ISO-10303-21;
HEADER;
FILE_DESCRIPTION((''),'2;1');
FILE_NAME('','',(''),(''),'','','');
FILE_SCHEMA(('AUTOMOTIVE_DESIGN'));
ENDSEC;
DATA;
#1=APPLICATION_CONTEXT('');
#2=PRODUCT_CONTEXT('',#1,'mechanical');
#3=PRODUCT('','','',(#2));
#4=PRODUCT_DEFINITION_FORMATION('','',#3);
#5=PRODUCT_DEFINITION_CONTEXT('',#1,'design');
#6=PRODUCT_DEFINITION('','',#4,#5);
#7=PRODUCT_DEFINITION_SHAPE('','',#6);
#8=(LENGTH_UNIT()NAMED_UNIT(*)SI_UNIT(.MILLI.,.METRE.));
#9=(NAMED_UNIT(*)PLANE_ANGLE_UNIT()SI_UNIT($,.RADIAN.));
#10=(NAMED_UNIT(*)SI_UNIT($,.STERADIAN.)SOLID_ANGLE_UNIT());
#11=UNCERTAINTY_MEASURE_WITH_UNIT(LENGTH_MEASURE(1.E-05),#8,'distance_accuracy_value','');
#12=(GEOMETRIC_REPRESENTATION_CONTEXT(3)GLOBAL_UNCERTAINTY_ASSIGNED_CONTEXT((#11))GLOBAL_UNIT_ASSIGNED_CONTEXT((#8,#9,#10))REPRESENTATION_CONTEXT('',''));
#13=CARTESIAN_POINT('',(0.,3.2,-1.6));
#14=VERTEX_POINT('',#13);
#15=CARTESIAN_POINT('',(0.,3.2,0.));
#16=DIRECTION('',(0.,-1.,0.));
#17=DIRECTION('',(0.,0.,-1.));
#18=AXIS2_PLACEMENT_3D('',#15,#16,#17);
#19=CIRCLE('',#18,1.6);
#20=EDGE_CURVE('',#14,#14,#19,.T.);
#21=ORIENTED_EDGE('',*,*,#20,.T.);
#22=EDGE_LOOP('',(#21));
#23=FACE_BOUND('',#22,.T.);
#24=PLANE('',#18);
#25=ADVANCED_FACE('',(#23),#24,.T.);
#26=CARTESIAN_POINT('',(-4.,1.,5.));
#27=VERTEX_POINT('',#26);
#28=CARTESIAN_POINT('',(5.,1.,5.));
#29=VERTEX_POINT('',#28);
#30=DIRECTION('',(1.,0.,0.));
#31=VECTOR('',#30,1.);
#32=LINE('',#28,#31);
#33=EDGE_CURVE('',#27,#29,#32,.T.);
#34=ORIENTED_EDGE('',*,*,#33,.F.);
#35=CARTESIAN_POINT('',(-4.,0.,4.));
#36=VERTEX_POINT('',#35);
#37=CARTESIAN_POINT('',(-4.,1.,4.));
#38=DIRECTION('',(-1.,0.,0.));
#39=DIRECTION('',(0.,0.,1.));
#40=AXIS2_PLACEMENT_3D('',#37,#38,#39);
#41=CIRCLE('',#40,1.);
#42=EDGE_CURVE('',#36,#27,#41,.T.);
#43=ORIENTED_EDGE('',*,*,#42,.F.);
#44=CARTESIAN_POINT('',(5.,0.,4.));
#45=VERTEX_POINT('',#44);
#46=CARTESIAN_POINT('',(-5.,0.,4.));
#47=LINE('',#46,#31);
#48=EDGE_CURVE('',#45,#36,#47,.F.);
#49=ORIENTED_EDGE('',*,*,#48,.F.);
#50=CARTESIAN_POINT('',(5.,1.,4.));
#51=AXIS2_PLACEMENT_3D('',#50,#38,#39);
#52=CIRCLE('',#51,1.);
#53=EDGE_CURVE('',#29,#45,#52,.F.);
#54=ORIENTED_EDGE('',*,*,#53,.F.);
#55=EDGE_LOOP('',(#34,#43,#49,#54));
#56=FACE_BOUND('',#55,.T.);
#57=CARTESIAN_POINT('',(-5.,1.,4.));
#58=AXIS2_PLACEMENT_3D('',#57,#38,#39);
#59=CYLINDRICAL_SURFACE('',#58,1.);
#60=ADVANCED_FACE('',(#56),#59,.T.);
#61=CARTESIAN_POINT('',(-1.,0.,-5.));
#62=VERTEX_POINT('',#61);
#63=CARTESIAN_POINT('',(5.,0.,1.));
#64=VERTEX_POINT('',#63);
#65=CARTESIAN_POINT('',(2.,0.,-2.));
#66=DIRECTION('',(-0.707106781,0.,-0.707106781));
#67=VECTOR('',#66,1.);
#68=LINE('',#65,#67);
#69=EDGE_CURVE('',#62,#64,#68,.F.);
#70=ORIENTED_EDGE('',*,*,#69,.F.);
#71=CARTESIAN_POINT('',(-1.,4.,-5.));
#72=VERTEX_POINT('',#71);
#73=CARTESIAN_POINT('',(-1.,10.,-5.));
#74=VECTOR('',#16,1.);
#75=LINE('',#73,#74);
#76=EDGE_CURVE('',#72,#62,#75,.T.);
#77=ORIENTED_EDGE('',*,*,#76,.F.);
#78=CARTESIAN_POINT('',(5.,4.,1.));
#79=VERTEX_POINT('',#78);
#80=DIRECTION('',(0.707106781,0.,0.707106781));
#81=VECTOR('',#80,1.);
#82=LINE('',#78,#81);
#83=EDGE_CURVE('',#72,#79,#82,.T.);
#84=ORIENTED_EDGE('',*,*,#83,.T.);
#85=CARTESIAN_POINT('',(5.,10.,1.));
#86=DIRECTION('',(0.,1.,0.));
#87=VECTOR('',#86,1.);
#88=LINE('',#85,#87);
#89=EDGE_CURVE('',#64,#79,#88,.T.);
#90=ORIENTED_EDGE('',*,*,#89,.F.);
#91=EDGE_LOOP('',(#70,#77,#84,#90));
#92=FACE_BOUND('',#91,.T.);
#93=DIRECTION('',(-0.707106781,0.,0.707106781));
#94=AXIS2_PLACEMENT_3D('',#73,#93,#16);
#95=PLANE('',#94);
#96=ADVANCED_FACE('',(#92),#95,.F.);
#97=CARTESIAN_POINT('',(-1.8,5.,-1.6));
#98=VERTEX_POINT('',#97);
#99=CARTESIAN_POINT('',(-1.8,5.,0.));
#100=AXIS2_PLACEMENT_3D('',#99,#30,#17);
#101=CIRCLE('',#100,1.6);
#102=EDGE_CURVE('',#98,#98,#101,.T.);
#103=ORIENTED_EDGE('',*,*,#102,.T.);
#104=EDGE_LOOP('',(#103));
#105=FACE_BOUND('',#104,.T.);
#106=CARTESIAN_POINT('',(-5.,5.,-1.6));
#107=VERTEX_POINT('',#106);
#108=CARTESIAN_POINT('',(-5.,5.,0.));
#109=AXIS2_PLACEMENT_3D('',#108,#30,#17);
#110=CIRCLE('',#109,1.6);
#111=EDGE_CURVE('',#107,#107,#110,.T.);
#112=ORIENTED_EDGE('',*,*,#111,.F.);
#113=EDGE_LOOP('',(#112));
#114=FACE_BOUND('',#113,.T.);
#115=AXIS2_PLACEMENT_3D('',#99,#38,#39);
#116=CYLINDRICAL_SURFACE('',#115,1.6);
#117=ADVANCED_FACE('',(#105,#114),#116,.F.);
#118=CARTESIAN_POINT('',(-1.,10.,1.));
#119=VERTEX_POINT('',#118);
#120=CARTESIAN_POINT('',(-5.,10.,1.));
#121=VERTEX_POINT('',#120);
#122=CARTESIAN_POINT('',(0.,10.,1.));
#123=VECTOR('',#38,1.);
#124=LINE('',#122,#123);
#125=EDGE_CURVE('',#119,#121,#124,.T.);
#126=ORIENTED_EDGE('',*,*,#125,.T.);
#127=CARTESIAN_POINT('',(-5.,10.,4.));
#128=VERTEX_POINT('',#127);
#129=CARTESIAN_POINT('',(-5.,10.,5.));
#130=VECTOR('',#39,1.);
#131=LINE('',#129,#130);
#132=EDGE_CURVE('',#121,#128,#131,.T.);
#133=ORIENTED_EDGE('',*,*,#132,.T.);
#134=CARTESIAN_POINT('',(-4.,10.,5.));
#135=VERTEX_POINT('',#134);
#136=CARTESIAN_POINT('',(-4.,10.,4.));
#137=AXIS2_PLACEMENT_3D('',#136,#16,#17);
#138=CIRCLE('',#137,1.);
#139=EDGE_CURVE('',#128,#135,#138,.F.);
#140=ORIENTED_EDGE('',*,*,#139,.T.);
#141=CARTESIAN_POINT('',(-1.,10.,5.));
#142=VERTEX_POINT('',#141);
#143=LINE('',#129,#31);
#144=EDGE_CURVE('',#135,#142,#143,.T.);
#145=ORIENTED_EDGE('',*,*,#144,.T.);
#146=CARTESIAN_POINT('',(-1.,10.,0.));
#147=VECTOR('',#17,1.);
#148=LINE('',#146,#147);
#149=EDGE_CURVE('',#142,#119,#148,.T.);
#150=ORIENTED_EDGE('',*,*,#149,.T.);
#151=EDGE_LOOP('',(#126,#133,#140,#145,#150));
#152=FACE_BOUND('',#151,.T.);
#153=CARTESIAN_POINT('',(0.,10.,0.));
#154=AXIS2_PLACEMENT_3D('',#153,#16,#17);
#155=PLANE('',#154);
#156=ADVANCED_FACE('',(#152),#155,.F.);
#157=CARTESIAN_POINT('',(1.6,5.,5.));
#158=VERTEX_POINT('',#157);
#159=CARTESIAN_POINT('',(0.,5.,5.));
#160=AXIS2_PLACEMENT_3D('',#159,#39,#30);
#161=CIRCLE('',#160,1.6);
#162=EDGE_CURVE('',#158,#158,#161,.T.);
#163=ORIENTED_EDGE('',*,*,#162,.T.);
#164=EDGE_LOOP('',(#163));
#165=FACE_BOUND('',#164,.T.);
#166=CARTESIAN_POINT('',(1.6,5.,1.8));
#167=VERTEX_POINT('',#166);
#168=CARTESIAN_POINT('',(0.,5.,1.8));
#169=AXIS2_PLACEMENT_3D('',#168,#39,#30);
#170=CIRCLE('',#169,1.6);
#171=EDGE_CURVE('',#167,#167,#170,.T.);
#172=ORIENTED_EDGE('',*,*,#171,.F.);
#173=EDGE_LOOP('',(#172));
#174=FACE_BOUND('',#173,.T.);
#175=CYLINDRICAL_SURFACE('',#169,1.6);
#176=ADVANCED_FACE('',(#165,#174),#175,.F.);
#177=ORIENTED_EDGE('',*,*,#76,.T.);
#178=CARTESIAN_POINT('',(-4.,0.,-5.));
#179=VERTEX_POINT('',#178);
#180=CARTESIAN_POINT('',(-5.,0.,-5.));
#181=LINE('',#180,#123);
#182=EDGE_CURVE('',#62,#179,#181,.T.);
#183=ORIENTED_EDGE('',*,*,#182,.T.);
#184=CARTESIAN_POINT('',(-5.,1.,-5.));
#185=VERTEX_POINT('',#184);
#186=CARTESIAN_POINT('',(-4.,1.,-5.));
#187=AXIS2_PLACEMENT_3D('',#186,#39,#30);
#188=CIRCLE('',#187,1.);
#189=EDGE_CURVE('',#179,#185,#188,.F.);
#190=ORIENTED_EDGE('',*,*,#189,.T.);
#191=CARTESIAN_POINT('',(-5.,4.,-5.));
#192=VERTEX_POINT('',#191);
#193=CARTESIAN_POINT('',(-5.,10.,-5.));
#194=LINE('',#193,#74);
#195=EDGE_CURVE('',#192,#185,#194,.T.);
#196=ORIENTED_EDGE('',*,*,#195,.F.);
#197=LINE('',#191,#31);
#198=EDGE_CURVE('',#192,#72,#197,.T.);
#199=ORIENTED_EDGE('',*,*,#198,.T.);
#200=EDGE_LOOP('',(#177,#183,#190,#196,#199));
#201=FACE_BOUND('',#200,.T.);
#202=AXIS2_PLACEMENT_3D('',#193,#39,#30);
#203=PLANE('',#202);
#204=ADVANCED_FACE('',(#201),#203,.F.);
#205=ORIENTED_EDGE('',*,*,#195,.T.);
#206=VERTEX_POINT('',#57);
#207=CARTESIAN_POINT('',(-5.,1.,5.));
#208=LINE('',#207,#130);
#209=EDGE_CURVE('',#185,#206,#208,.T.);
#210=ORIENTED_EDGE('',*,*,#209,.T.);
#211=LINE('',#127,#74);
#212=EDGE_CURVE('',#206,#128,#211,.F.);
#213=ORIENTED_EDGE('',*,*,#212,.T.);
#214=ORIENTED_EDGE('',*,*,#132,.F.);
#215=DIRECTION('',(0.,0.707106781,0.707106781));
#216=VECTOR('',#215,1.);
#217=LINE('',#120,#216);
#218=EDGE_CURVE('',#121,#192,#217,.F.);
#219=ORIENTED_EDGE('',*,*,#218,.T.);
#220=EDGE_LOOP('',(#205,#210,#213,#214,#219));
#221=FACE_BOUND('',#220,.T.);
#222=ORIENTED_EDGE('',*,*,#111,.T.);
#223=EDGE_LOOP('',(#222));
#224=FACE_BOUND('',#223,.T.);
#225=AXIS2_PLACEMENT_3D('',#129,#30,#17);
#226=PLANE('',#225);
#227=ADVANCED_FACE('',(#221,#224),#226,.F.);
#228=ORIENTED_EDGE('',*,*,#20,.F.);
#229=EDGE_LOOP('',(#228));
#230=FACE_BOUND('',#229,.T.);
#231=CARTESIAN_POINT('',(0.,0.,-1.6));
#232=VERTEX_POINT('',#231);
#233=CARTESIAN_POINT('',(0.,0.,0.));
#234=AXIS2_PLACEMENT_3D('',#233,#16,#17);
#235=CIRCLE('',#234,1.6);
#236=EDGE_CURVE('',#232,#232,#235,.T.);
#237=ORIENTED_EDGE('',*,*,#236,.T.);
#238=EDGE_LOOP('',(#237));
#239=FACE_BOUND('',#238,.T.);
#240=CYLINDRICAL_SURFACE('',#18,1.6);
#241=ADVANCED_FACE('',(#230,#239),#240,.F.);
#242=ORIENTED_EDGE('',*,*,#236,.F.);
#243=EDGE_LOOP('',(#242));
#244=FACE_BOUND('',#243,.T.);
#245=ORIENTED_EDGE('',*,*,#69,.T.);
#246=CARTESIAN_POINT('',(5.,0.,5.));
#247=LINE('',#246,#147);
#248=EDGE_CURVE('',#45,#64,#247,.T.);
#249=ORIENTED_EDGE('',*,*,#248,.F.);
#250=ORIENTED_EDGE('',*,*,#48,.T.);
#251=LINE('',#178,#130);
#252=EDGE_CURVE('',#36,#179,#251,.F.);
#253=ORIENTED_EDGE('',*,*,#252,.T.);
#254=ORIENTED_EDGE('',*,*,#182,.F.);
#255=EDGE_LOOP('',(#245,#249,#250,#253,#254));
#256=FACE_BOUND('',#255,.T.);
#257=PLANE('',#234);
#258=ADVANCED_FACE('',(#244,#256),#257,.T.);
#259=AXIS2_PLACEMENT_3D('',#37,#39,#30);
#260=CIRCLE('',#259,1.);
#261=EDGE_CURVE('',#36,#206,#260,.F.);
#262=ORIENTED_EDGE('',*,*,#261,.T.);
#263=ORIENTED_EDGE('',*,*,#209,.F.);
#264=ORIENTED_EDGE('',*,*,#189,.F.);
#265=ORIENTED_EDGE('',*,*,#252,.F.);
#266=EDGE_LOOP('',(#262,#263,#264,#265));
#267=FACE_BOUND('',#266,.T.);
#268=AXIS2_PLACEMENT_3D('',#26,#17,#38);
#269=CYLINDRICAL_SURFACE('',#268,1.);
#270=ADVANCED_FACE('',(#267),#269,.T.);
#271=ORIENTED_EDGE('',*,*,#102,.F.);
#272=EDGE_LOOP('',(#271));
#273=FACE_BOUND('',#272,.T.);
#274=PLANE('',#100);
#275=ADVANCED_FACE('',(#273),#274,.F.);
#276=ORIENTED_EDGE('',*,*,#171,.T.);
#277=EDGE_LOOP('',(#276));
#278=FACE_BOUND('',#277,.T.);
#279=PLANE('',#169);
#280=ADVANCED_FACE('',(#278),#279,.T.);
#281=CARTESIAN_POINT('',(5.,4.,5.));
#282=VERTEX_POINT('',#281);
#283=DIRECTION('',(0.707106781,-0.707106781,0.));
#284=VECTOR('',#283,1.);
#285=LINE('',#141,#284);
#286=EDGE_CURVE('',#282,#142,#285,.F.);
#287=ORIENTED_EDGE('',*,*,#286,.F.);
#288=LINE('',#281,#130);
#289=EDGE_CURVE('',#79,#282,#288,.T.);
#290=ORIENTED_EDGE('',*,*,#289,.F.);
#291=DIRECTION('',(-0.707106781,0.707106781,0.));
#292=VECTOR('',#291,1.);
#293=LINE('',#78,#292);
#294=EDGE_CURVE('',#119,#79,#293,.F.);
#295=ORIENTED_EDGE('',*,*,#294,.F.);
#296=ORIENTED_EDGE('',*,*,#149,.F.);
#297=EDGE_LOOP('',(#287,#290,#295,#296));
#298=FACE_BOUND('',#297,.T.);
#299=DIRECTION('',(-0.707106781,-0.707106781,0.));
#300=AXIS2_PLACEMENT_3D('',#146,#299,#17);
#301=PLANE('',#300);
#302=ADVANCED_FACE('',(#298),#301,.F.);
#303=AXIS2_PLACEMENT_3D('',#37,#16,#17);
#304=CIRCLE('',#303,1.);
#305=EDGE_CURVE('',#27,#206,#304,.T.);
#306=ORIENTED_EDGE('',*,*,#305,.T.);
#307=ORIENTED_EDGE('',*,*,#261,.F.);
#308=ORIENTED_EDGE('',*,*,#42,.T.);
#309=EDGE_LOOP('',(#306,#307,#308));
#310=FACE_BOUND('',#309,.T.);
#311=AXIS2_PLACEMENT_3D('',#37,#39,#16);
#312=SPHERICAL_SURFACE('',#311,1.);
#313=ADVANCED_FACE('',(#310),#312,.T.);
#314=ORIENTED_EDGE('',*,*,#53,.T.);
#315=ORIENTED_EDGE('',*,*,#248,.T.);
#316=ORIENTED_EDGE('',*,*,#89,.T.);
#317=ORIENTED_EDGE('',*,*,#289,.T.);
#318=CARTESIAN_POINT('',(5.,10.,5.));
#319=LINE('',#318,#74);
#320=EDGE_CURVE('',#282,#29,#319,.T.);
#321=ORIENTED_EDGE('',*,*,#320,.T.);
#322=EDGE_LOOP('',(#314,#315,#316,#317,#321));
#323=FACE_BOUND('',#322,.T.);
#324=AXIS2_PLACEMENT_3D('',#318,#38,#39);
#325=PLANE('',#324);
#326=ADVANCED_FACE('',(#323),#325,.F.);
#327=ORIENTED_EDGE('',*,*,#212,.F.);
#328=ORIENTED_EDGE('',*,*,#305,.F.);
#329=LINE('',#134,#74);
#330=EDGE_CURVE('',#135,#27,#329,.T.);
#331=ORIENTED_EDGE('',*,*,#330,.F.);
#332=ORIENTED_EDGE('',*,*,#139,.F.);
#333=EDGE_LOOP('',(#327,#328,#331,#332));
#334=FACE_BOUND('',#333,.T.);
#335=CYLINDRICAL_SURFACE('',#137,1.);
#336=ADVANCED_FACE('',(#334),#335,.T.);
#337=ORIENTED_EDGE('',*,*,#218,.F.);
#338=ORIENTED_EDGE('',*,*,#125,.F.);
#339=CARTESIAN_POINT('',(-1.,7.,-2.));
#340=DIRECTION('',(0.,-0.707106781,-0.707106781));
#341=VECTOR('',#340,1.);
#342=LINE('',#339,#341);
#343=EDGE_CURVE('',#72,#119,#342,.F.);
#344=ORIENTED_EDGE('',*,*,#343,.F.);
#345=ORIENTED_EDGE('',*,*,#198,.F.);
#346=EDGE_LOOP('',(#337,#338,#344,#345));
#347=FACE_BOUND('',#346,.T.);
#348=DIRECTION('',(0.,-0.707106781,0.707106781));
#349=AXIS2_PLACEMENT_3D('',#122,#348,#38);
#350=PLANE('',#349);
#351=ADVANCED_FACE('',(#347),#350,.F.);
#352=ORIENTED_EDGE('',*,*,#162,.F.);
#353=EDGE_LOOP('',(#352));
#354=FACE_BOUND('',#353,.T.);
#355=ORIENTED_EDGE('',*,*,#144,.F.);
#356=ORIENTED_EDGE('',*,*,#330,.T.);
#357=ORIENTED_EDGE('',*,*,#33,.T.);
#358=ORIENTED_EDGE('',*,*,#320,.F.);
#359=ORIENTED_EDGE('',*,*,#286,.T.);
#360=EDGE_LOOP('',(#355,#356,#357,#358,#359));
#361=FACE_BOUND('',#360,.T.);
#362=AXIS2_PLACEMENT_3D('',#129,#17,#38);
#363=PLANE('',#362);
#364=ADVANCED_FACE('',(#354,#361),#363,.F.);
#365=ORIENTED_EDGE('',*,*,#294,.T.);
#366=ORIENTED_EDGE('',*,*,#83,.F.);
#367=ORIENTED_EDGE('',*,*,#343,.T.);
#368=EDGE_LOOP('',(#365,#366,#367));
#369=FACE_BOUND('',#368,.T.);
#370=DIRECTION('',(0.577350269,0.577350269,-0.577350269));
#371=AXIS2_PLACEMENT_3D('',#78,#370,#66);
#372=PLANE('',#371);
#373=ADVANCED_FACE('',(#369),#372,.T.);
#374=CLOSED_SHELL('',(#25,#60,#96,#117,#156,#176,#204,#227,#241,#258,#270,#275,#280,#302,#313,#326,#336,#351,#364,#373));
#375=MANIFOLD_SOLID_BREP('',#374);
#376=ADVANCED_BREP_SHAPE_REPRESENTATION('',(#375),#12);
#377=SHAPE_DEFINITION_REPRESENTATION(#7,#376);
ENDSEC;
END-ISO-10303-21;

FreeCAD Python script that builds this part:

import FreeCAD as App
import Part
import Sketcher
Q = App.Units.Quantity


def edges_at(feature, points):
    """Names of the edges that pass closest to the given points."""
    edges = feature.Shape.Edges
    near = lambda p: min(range(len(edges)), key=lambda i: edges[i].distToShape(Part.Vertex(*p))[0])
    return sorted({f"Edge{near(p) + 1}" for p in points})

doc = App.newDocument("Part")
body = doc.addObject("PartDesign::Body", "Body")

sketch1 = doc.addObject("Sketcher::SketchObject", "Sketch")
body.addObject(sketch1)
sketch1.AttachmentSupport = (doc.XZ_Plane, [""])
sketch1.MapMode = "FlatFace"
sketch1.addGeometry([
    Part.LineSegment(App.Vector(-5, -5, 0), App.Vector(-5, 5, 0)),
    Part.LineSegment(App.Vector(-5, 5, 0), App.Vector(5, 5, 0)),
    Part.LineSegment(App.Vector(5, 5, 0), App.Vector(5, -5, 0)),
    Part.LineSegment(App.Vector(5, -5, 0), App.Vector(-5, -5, 0)),
], False)
sketch1.addConstraint([
    Sketcher.Constraint("Coincident", 0, 2, 1, 1),
    Sketcher.Constraint("Coincident", 1, 2, 2, 1),
    Sketcher.Constraint("Coincident", 2, 2, 3, 1),
    Sketcher.Constraint("Coincident", 3, 2, 0, 1),
    Sketcher.Constraint("Vertical", 0),
    Sketcher.Constraint("Horizontal", 1),
    Sketcher.Constraint("Vertical", 2),
    Sketcher.Constraint("Horizontal", 3),
    Sketcher.Constraint("Symmetric", 0, 2, 2, 2, -1, 1),
    Sketcher.Constraint("Equal", 3, 0),
    Sketcher.Constraint("DistanceX", 1, 1, 1, 2, Q("10 mm")),
])
pad1 = doc.addObject("PartDesign::Pad", "Pad")
body.addObject(pad1)
pad1.Profile = sketch1
pad1.Length = 10
pad1.Reversed = True

sketch2 = doc.addObject("Sketcher::SketchObject", "Sketch001")
body.addObject(sketch2)
sketch2.AttachmentSupport = (doc.XY_Plane, [""])
sketch2.MapMode = "FlatFace"
sketch2.AttachmentOffset = App.Placement(App.Vector(0, 0, 5), App.Rotation())
sketch2.addGeometry(Part.Circle(App.Vector(0, 5, 0), App.Vector(0, 0, 1), 1.6), False)
sketch2.addConstraint([
    Sketcher.Constraint("PointOnObject", 0, 3, -2),
    Sketcher.Constraint("Diameter", 0, Q("3.2 mm")),
    Sketcher.Constraint("DistanceY", -1, 1, 0, 3, Q("5 mm")),
])
pocket1 = doc.addObject("PartDesign::Pocket", "Pocket")
body.addObject(pocket1)
pocket1.Profile = sketch2
pocket1.Length = 3.2

sketch3 = doc.addObject("Sketcher::SketchObject", "Sketch002")
body.addObject(sketch3)
sketch3.AttachmentSupport = (doc.XZ_Plane, [""])
sketch3.MapMode = "FlatFace"
sketch3.addGeometry(Part.Circle(App.Vector(0, 0, 0), App.Vector(0, 0, 1), 1.6), False)
sketch3.addConstraint([
    Sketcher.Constraint("Coincident", 0, 3, -1, 1),
    Sketcher.Constraint("Diameter", 0, Q("3.2 mm")),
])
pocket2 = doc.addObject("PartDesign::Pocket", "Pocket001")
body.addObject(pocket2)
pocket2.Profile = sketch3
pocket2.Length = 3.2

sketch4 = doc.addObject("Sketcher::SketchObject", "Sketch003")
body.addObject(sketch4)
sketch4.AttachmentSupport = (doc.YZ_Plane, [""])
sketch4.MapMode = "FlatFace"
sketch4.AttachmentOffset = App.Placement(App.Vector(0, 0, -5), App.Rotation())
sketch4.addGeometry(Part.Circle(App.Vector(5, 0, 0), App.Vector(0, 0, 1), 1.6), False)
sketch4.addConstraint([
    Sketcher.Constraint("PointOnObject", 0, 3, -1),
    Sketcher.Constraint("Diameter", 0, Q("3.2 mm")),
    Sketcher.Constraint("DistanceX", -1, 1, 0, 3, Q("5 mm")),
])
pocket3 = doc.addObject("PartDesign::Pocket", "Pocket002")
body.addObject(pocket3)
pocket3.Profile = sketch4
pocket3.Length = 3.2
pocket3.Reversed = True
doc.recompute()

fillet = doc.addObject("PartDesign::Fillet", "Fillet")
body.addObject(fillet)
fillet.Base = (pocket3, edges_at(pocket3, [(0, 0, 5), (-5, 0, 0), (-5, 5, 5)]))
fillet.Radius = 1
doc.recompute()

chamfer = doc.addObject("PartDesign::Chamfer", "Chamfer")
body.addObject(chamfer)
chamfer.Base = (fillet, edges_at(fillet, [(5, 10, 0), (5, 5, -5), (0, 10, -5)]))
chamfer.Size = 6

doc.recompute()
